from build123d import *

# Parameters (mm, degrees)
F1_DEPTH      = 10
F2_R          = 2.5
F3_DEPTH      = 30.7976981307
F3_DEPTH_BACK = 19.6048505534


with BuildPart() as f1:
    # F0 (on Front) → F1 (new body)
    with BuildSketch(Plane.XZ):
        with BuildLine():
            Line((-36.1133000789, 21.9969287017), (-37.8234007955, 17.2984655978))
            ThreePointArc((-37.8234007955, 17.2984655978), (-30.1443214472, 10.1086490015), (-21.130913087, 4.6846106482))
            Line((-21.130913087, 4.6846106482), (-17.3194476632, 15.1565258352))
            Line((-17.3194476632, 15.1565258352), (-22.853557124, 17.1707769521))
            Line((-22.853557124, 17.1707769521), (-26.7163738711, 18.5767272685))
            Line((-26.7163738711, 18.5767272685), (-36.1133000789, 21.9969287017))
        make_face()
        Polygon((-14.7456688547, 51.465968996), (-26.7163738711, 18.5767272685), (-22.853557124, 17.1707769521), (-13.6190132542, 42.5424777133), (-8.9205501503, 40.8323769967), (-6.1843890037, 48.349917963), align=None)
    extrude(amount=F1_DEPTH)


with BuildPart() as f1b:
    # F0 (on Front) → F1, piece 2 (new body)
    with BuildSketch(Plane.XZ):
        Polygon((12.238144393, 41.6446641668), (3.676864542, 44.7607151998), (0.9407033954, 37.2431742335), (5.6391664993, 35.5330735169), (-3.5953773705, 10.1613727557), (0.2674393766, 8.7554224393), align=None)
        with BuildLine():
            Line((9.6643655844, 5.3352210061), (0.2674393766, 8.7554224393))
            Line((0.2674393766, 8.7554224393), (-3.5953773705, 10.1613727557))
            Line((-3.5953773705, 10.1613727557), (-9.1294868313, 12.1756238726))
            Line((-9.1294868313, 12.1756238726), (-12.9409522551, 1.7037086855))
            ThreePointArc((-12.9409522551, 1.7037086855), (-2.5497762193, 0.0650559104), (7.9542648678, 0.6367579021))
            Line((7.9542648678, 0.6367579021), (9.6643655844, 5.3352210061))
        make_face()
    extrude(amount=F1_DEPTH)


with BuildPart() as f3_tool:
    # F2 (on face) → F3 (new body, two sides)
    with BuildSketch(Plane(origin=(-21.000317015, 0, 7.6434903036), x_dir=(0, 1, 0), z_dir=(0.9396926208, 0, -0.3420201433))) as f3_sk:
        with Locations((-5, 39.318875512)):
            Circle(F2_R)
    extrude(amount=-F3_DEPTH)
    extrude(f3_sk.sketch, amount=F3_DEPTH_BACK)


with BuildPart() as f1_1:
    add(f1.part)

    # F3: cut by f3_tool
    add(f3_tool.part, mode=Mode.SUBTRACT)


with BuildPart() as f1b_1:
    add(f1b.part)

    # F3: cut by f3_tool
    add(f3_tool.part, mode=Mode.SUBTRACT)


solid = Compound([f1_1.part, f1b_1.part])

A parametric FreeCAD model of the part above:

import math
import FreeCAD as App
import Part
import Sketcher

V = App.Vector
Q = App.Units.Quantity

doc = App.newDocument("Part")
body = doc.addObject("PartDesign::Body", "Body")

# Sketch on XZ plane
sketch1 = body.newObject("Sketcher::SketchObject", "Sketch")
sketch1.AttachmentSupport = (doc.getObject("XZ_Plane"), [""])
sketch1.MapMode = "FlatFace"
sketch1.addGeometry([
    Part.LineSegment(V(-36.1, 22, 0), V(-37.8, 17.3, 0)),  # 0
    Part.ArcOfCircle(Part.Circle(V(0, 50, 0), V(0, 0, 1), 50), math.radians(-139), math.radians(-115)),  # 1
    Part.LineSegment(V(-21.1, 4.7, 0), V(-17.3, 15.2, 0)),  # 2
    Part.LineSegment(V(-17.3, 15.2, 0), V(-22.9, 17.2, 0)),  # 3
    Part.LineSegment(V(-22.9, 17.2, 0), V(-13.6, 42.5, 0)),  # 4
    Part.LineSegment(V(-13.6, 42.5, 0), V(-8.9, 40.8, 0)),  # 5
    Part.LineSegment(V(-8.9, 40.8, 0), V(-6.2, 48.3, 0)),  # 6
    Part.LineSegment(V(-6.2, 48.3, 0), V(-14.7, 51.5, 0)),  # 7
    Part.LineSegment(V(-14.7, 51.5, 0), V(-26.7, 18.6, 0)),  # 8
    Part.LineSegment(V(-26.7, 18.6, 0), V(-36.1, 22, 0)),  # 9
], False)
sketch1.addConstraint([
    Sketcher.Constraint("Coincident", 0, 2, 1, 1),
    Sketcher.Constraint("Coincident", 1, 2, 2, 1),
    Sketcher.Constraint("Coincident", 2, 2, 3, 1),
    Sketcher.Constraint("Coincident", 3, 2, 4, 1),
    Sketcher.Constraint("Coincident", 4, 2, 5, 1),
    Sketcher.Constraint("Coincident", 5, 2, 6, 1),
    Sketcher.Constraint("Coincident", 6, 2, 7, 1),
    Sketcher.Constraint("Coincident", 7, 2, 8, 1),
    Sketcher.Constraint("Coincident", 8, 2, 9, 1),
    Sketcher.Constraint("Coincident", 9, 2, 0, 1),
    Sketcher.Constraint("PointOnObject", 1, 3, -2),
    Sketcher.Constraint("Parallel", 0, 2),
    Sketcher.Constraint("Perpendicular", 2, 3),
    Sketcher.Constraint("Perpendicular", 3, 4),
    Sketcher.Constraint("Perpendicular", 4, 5),
    Sketcher.Constraint("Perpendicular", 5, 6),
    Sketcher.Constraint("Perpendicular", 6, 7),
    Sketcher.Constraint("Perpendicular", 7, 8),
    Sketcher.Constraint("Perpendicular", 8, 9),
    Sketcher.Constraint("Equal", 0, 5),
    Sketcher.Constraint("Radius", 1, Q("50 mm")),
    Sketcher.Constraint("Angle", 0, Q("-110 deg")),
    Sketcher.Constraint("Distance", 0, Q("5 mm")),
    Sketcher.Constraint("Distance", 4, Q("27 mm")),
    Sketcher.Constraint("Distance", 6, Q("8 mm")),
    Sketcher.Constraint("Distance", 8, Q("35 mm")),
    Sketcher.Constraint("Distance", 9, Q("10 mm")),
    Sketcher.Constraint("DistanceY", -1, 1, 1, 3, Q("50 mm")),
    Sketcher.Constraint("DistanceX", 0, 2, -1, 1, Q("37.823401 mm")),
    Sketcher.Constraint("DistanceX", 1, 2, 4, 2, Q("7.5119 mm")),
    Sketcher.Constraint("DistanceY", 2, 2, 8, 2, Q("3.420201 mm")),
])
pad1 = body.newObject("PartDesign::Pad", "Pad")
pad1.Profile = sketch1
pad1.Length = 10
body2 = doc.addObject("PartDesign::Body", "Body001")

# Sketch on XZ plane
sketch2 = body2.newObject("Sketcher::SketchObject", "Sketch001")
sketch2.AttachmentSupport = (doc.getObject("XZ_Plane001"), [""])
sketch2.MapMode = "FlatFace"
sketch2.addGeometry([
    Part.LineSegment(V(12.2, 41.6, 0), V(3.7, 44.8, 0)),  # 0
    Part.LineSegment(V(3.7, 44.8, 0), V(0.9, 37.2, 0)),  # 1
    Part.LineSegment(V(0.9, 37.2, 0), V(5.6, 35.5, 0)),  # 2
    Part.LineSegment(V(5.6, 35.5, 0), V(-3.6, 10.2, 0)),  # 3
    Part.LineSegment(V(-3.6, 10.2, 0), V(-9.1, 12.2, 0)),  # 4
    Part.LineSegment(V(-9.1, 12.2, 0), V(-12.9, 1.7, 0)),  # 5
    Part.ArcOfCircle(Part.Circle(V(0, 50, 0), V(0, 0, 1), 50), math.radians(-105), math.radians(-81)),  # 6
    Part.LineSegment(V(8, 0.6, 0), V(9.7, 5.3, 0)),  # 7
    Part.LineSegment(V(9.7, 5.3, 0), V(0.3, 8.8, 0)),  # 8
    Part.LineSegment(V(0.3, 8.8, 0), V(12.2, 41.6, 0)),  # 9
], False)
sketch2.addConstraint([
    Sketcher.Constraint("Coincident", 0, 2, 1, 1),
    Sketcher.Constraint("Coincident", 1, 2, 2, 1),
    Sketcher.Constraint("Coincident", 2, 2, 3, 1),
    Sketcher.Constraint("Coincident", 3, 2, 4, 1),
    Sketcher.Constraint("Coincident", 4, 2, 5, 1),
    Sketcher.Constraint("Coincident", 5, 2, 6, 1),
    Sketcher.Constraint("Coincident", 6, 2, 7, 1),
    Sketcher.Constraint("Coincident", 7, 2, 8, 1),
    Sketcher.Constraint("Coincident", 8, 2, 9, 1),
    Sketcher.Constraint("Coincident", 9, 2, 0, 1),
    Sketcher.Constraint("PointOnObject", 6, 3, -2),
    Sketcher.Constraint("Perpendicular", 0, 1),
    Sketcher.Constraint("Perpendicular", 1, 2),
    Sketcher.Constraint("Perpendicular", 2, 3),
    Sketcher.Constraint("Perpendicular", 3, 4),
    Sketcher.Constraint("Perpendicular", 4, 5),
    Sketcher.Constraint("Parallel", 5, 7),
    Sketcher.Constraint("Perpendicular", 7, 8),
    Sketcher.Constraint("Perpendicular", 8, 9),
    Sketcher.Constraint("Equal", 2, 7),
    Sketcher.Constraint("Radius", 6, Q("50 mm")),
    Sketcher.Constraint("Angle", 0, Q("160 deg")),
    Sketcher.Constraint("Distance", 1, Q("8 mm")),
    Sketcher.Constraint("Distance", 2, Q("5 mm")),
    Sketcher.Constraint("Distance", 3, Q("27 mm")),
    Sketcher.Constraint("Distance", 8, Q("10 mm")),
    Sketcher.Constraint("Distance", 9, Q("35 mm")),
    Sketcher.Constraint("DistanceY", -1, 1, 6, 3, Q("50 mm")),
    Sketcher.Constraint("DistanceX", 2, 2, 6, 2, Q("2.315098 mm")),
    Sketcher.Constraint("DistanceY", 8, 2, 4, 2, Q("3.420201 mm")),
    Sketcher.Constraint("Distance", 5, Q("11.143979 mm")),
])
pad2 = body2.newObject("PartDesign::Pad", "Pad001")
pad2.Profile = sketch2
pad2.Length = 10
body3 = doc.addObject("PartDesign::Body", "Body002")

# Sketch on an angled plane
sketch3 = body3.newObject("Sketcher::SketchObject", "Sketch002")
sketch3.Placement = App.Placement(V(-21.000317, 0, 7.64349), App.Rotation(V(0, 1, 0), V(0.342020143, 0, 0.939692621), V(0.939692621, 0, -0.342020143), "ZXY"))
sketch3.addGeometry(Part.Circle(V(-5, 39.3, 0), V(0, 0, 1), 2.5), False)
sketch3.addConstraint([
    Sketcher.Constraint("Diameter", 0, Q("5 mm")),
    Sketcher.Constraint("DistanceX", 0, 3, -1, 1, Q("5 mm")),
    Sketcher.Constraint("DistanceY", -1, 1, 0, 3, Q("39.318876 mm")),
])
pad3 = body3.newObject("PartDesign::Pad", "Pad002")
pad3.Profile = sketch3
pad3.Type = "TwoLengths"
pad3.Length = 30.797698
pad3.Length2 = 19.604851
pad3.Reversed = True
doc.recompute()

body4 = doc.addObject("PartDesign::Body", "Body003")
body4.BaseFeature = body3
boolean = body.newObject("PartDesign::Boolean", "Boolean")
boolean.Type = "Cut"
boolean.addObjects([body4])
doc.recompute()

boolean2 = body2.newObject("PartDesign::Boolean", "Boolean001")
boolean2.Type = "Cut"
boolean2.addObjects([body3])

doc.recompute()
